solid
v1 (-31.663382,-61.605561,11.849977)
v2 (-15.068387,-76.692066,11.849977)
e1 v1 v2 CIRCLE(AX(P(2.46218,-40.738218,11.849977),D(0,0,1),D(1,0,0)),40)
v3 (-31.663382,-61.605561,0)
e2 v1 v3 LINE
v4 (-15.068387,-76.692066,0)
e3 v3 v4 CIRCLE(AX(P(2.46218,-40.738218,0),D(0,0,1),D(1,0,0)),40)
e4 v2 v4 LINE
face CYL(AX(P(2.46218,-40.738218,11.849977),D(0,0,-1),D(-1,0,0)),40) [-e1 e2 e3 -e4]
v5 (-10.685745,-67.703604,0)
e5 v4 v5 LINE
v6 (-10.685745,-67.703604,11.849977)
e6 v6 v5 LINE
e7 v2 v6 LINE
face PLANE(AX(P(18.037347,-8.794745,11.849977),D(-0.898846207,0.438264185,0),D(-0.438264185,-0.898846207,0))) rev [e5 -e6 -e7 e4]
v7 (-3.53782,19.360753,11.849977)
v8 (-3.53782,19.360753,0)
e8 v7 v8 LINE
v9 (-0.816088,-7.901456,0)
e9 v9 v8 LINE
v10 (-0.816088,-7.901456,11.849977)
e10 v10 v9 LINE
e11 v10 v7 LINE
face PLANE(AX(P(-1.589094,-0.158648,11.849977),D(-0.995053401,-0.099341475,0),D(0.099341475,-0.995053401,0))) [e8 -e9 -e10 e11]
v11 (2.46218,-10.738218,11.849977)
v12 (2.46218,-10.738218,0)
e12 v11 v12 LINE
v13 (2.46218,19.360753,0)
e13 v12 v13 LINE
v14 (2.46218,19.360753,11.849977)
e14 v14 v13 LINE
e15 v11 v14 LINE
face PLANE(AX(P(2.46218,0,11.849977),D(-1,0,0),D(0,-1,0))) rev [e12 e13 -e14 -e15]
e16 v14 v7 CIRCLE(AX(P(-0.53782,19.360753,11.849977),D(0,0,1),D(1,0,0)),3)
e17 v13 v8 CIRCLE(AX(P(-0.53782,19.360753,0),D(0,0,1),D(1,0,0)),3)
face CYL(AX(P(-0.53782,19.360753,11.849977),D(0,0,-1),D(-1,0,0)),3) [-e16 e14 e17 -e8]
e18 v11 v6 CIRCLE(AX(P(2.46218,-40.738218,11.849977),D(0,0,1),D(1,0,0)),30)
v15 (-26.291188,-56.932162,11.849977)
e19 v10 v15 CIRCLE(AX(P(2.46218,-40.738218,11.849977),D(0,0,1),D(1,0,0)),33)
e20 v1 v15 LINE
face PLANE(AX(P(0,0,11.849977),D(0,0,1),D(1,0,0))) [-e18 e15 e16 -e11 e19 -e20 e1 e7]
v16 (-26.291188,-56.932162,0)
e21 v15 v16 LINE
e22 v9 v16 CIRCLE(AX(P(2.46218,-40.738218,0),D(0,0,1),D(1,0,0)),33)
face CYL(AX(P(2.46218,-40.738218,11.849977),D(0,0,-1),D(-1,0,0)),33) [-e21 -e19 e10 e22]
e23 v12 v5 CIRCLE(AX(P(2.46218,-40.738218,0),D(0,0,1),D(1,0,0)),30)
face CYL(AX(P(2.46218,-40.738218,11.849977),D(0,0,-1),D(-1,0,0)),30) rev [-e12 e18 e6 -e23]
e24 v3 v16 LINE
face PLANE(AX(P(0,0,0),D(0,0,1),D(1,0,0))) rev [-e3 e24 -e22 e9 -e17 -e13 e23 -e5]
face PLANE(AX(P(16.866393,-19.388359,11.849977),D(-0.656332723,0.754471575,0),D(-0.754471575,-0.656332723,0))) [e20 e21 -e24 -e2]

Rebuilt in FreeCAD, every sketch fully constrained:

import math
import FreeCAD as App
import Part
import Sketcher

V = App.Vector
Q = App.Units.Quantity

doc = App.newDocument("Part")
body = doc.addObject("PartDesign::Body", "Body")

sketch1 = doc.addObject("Sketcher::SketchObject", "Sketch")
body.addObject(sketch1)
sketch1.AttachmentSupport = (doc.XY_Plane, [""])
sketch1.MapMode = "FlatFace"
sketch1.addGeometry(Part.ArcOfCircle(Part.Circle(V(2.5, -40.7, 0), V(0, 0, 1), 30), math.radians(90), math.radians(244)), False)
sketch1.addGeometry(Part.LineSegment(V(2.5, -10.7, 0), V(2.5, 19.4, 0)), False)
sketch1.addGeometry(Part.ArcOfCircle(Part.Circle(V(-0.5, 19.4, 0), V(0, 0, 1), 3), math.radians(0), math.radians(180)), False)
sketch1.addGeometry(Part.LineSegment(V(-3.5, 19.4, 0), V(-3.5, 18.8, 0)), False)
sketch1.addGeometry(Part.LineSegment(V(-3.5, 18.8, 0), V(-0.8, -7.9, 0)), False)
sketch1.addGeometry(Part.ArcOfCircle(Part.Circle(V(2.5, -40.7, 0), V(0, 0, 1), 33), math.radians(96), math.radians(209)), False)
sketch1.addGeometry(Part.LineSegment(V(-26.3, -56.9, 0), V(-31.7, -61.6, 0)), False)
sketch1.addGeometry(Part.ArcOfCircle(Part.Circle(V(2.5, -40.7, 0), V(0, 0, 1), 40), math.radians(-149), math.radians(-116)), False)
sketch1.addGeometry(Part.LineSegment(V(-15.1, -76.7, 0), V(-10.7, -67.7, 0)), False)
sketch1.addConstraint(Sketcher.Constraint("Coincident", 0, 1, 1, 1))
sketch1.addConstraint(Sketcher.Constraint("Tangent", 1, 2, 2, 1))
sketch1.addConstraint(Sketcher.Constraint("Coincident", 2, 2, 3, 1))
sketch1.addConstraint(Sketcher.Constraint("Coincident", 3, 2, 4, 1))
sketch1.addConstraint(Sketcher.Constraint("Coincident", 4, 2, 5, 1))
sketch1.addConstraint(Sketcher.Constraint("Coincident", 5, 2, 6, 1))
sketch1.addConstraint(Sketcher.Constraint("Coincident", 6, 2, 7, 1))
sketch1.addConstraint(Sketcher.Constraint("Coincident", 7, 2, 8, 1))
sketch1.addConstraint(Sketcher.Constraint("Coincident", 8, 2, 0, 2))
sketch1.addConstraint(Sketcher.Constraint("Vertical", 1))
sketch1.addConstraint(Sketcher.Constraint("Coincident", 5, 3, 0, 3))
sketch1.addConstraint(Sketcher.Constraint("Coincident", 7, 3, 0, 3))
sketch1.addConstraint(Sketcher.Constraint("Parallel", 3, 4))
sketch1.addConstraint(Sketcher.Constraint("Horizontal", 1, 2, 2, 2))
sketch1.addConstraint(Sketcher.Constraint("Vertical", 7, 3, 0, 1))
sketch1.addConstraint(Sketcher.Constraint("Radius", 0, Q("30 mm")))
sketch1.addConstraint(Sketcher.Constraint("Radius", 2, Q("3 mm")))
sketch1.addConstraint(Sketcher.Constraint("Radius", 5, Q("33 mm")))
sketch1.addConstraint(Sketcher.Constraint("Radius", 7, Q("40 mm")))
sketch1.addConstraint(Sketcher.Constraint("DistanceY", 1, 1, 1, 2, Q("30.098971 mm")))
sketch1.addConstraint(Sketcher.Constraint("DistanceY", 3, 2, 2, 2, Q("0.5931 mm")))
sketch1.addConstraint(Sketcher.Constraint("DistanceX", 5, 2, 4, 2, Q("25.475099 mm")))
sketch1.addConstraint(Sketcher.Constraint("DistanceY", 6, 2, 5, 2, Q("4.673399 mm")))
sketch1.addConstraint(Sketcher.Constraint("DistanceX", 5, 2, 7, 2, Q("11.222801 mm")))
sketch1.addConstraint(Sketcher.Constraint("DistanceX", -1, 1, 0, 3, Q("2.46218 mm")))
sketch1.addConstraint(Sketcher.Constraint("DistanceX", 4, 2, -1, 1, Q("0.816088 mm")))
sketch1.addConstraint(Sketcher.Constraint("DistanceY", 6, 2, -1, 1, Q("61.605561 mm")))
sketch1.addConstraint(Sketcher.Constraint("DistanceX", 7, 2, 8, 2, Q("4.382642 mm")))
pad1 = doc.addObject("PartDesign::Pad", "Pad")
body.addObject(pad1)
pad1.Profile = sketch1
pad1.Length = 11.849977

doc.recompute()
